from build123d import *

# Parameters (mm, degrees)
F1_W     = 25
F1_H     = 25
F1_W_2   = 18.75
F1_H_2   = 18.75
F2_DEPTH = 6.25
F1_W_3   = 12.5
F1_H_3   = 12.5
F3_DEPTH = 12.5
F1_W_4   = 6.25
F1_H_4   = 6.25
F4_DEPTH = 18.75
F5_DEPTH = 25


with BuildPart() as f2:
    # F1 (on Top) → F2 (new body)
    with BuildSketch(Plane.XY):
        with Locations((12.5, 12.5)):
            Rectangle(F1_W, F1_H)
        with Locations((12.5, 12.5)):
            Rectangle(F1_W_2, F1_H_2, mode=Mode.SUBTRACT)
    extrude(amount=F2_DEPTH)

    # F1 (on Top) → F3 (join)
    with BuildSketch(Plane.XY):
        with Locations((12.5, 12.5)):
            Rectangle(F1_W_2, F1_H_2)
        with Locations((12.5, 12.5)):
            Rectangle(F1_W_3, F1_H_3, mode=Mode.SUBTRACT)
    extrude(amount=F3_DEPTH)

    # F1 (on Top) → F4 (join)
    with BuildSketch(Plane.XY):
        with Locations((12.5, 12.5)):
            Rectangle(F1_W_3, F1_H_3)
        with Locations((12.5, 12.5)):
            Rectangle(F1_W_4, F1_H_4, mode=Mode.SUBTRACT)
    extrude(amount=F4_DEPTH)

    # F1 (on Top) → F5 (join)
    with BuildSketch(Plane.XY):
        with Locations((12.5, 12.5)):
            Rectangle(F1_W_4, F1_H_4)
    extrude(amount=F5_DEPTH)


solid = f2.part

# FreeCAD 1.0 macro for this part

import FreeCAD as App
import Part
import Sketcher
from FreeCAD import Vector
Q = App.Units.Quantity

doc = App.newDocument("Part")
params = doc.addObject("Spreadsheet::Sheet", "Params")
for row, (alias, value) in enumerate([
    ("sketch1_width", "25 mm"),
    ("sketch1_width2", "18.75 mm"),
    ("pad1_length", "6.25 mm"),
    ("sketch2_width", "12.5 mm"),
    ("sketch2_width2", "18.75 mm"),
    ("pad2_length", "12.5 mm"),
    ("sketch3_width", "12.5 mm"),
    ("sketch3_width2", "6.25 mm"),
    ("pad3_length", "18.75 mm"),
    ("sketch4_width", "6.25 mm"),
    ("pad4_length", "25 mm"),
], start=1):
    params.set(f"A{row}", alias)
    params.set(f"B{row}", "=" + value)
    params.setAlias(f"B{row}", alias)

body = doc.addObject("PartDesign::Body", "Body")

sketch1 = body.newObject("Sketcher::SketchObject", "Sketch")
sketch1.AttachmentSupport = (doc.getObject("XY_Plane"), [""])
sketch1.MapMode = "FlatFace"
sketch1.addGeometry([
    Part.LineSegment(Vector(0, 25, 0), Vector(0, 0, 0)),
    Part.LineSegment(Vector(0, 0, 0), Vector(25, 0, 0)),
    Part.LineSegment(Vector(25, 0, 0), Vector(25, 25, 0)),
    Part.LineSegment(Vector(25, 25, 0), Vector(0, 25, 0)),
    Part.LineSegment(Vector(22, 3, 0), Vector(3, 3, 0)),
    Part.LineSegment(Vector(3, 3, 0), Vector(3, 22, 0)),
    Part.LineSegment(Vector(3, 22, 0), Vector(22, 22, 0)),
    Part.LineSegment(Vector(22, 22, 0), Vector(22, 3, 0)),
], False)
sketch1.addConstraint([
    Sketcher.Constraint("Coincident", 0, 2, 1, 1),
    Sketcher.Constraint("Coincident", 1, 2, 2, 1),
    Sketcher.Constraint("Coincident", 2, 2, 3, 1),
    Sketcher.Constraint("Coincident", 3, 2, 0, 1),
    Sketcher.Constraint("Coincident", 4, 2, 5, 1),
    Sketcher.Constraint("Coincident", 5, 2, 6, 1),
    Sketcher.Constraint("Coincident", 6, 2, 7, 1),
    Sketcher.Constraint("Coincident", 7, 2, 4, 1),
    Sketcher.Constraint("Vertical", 0),
    Sketcher.Constraint("Horizontal", 1),
    Sketcher.Constraint("Vertical", 2),
    Sketcher.Constraint("Horizontal", 3),
    Sketcher.Constraint("Horizontal", 4),
    Sketcher.Constraint("Vertical", 5),
    Sketcher.Constraint("Horizontal", 6),
    Sketcher.Constraint("Vertical", 7),
    Sketcher.Constraint("Coincident", 0, 2, -1, 1),
    Sketcher.Constraint("Equal", 3, 0),
    Sketcher.Constraint("Equal", 6, 5),
    Sketcher.Constraint("DistanceX", 1, 1, 1, 2, Q("25 mm")),
    Sketcher.Constraint("DistanceX", 4, 2, 4, 1, Q("18.75 mm")),
    Sketcher.Constraint("DistanceX", -1, 1, 4, 2, Q("3.125 mm")),
    Sketcher.Constraint("DistanceY", -1, 1, 4, 2, Q("3.125 mm")),
])
sketch1.setExpression("Constraints[19]", "Params.sketch1_width")
sketch1.setExpression("Constraints[20]", "Params.sketch1_width2")
pad1 = body.newObject("PartDesign::Pad", "Pad")
pad1.Profile = sketch1
pad1.setExpression("Length", "Params.pad1_length")

sketch2 = body.newObject("Sketcher::SketchObject", "Sketch001")
sketch2.AttachmentSupport = (doc.getObject("XY_Plane"), [""])
sketch2.MapMode = "FlatFace"
sketch2.addGeometry([
    Part.LineSegment(Vector(3, 22, 0), Vector(3, 3, 0)),
    Part.LineSegment(Vector(3, 3, 0), Vector(22, 3, 0)),
    Part.LineSegment(Vector(22, 3, 0), Vector(22, 22, 0)),
    Part.LineSegment(Vector(22, 22, 0), Vector(3, 22, 0)),
    Part.LineSegment(Vector(19, 6, 0), Vector(6, 6, 0)),
    Part.LineSegment(Vector(6, 6, 0), Vector(6, 19, 0)),
    Part.LineSegment(Vector(6, 19, 0), Vector(19, 19, 0)),
    Part.LineSegment(Vector(19, 19, 0), Vector(19, 6, 0)),
], False)
sketch2.addConstraint([
    Sketcher.Constraint("Coincident", 0, 2, 1, 1),
    Sketcher.Constraint("Coincident", 1, 2, 2, 1),
    Sketcher.Constraint("Coincident", 2, 2, 3, 1),
    Sketcher.Constraint("Coincident", 3, 2, 0, 1),
    Sketcher.Constraint("Coincident", 4, 2, 5, 1),
    Sketcher.Constraint("Coincident", 5, 2, 6, 1),
    Sketcher.Constraint("Coincident", 6, 2, 7, 1),
    Sketcher.Constraint("Coincident", 7, 2, 4, 1),
    Sketcher.Constraint("Vertical", 0),
    Sketcher.Constraint("Horizontal", 1),
    Sketcher.Constraint("Vertical", 2),
    Sketcher.Constraint("Horizontal", 3),
    Sketcher.Constraint("Horizontal", 4),
    Sketcher.Constraint("Vertical", 5),
    Sketcher.Constraint("Horizontal", 6),
    Sketcher.Constraint("Vertical", 7),
    Sketcher.Constraint("Equal", 3, 0),
    Sketcher.Constraint("Equal", 6, 5),
    Sketcher.Constraint("DistanceX", 4, 2, 4, 1, Q("12.5 mm")),
    Sketcher.Constraint("DistanceX", 1, 1, 1, 2, Q("18.75 mm")),
    Sketcher.Constraint("DistanceX", -1, 1, 4, 2, Q("6.25 mm")),
    Sketcher.Constraint("DistanceY", -1, 1, 4, 2, Q("6.25 mm")),
    Sketcher.Constraint("DistanceX", -1, 1, 0, 2, Q("3.125 mm")),
    Sketcher.Constraint("DistanceY", -1, 1, 0, 2, Q("3.125 mm")),
])
sketch2.setExpression("Constraints[18]", "Params.sketch2_width")
sketch2.setExpression("Constraints[19]", "Params.sketch2_width2")
pad2 = body.newObject("PartDesign::Pad", "Pad001")
pad2.Profile = sketch2
pad2.setExpression("Length", "Params.pad2_length")

sketch3 = body.newObject("Sketcher::SketchObject", "Sketch002")
sketch3.AttachmentSupport = (doc.getObject("XY_Plane"), [""])
sketch3.MapMode = "FlatFace"
sketch3.addGeometry([
    Part.LineSegment(Vector(6, 19, 0), Vector(6, 6, 0)),
    Part.LineSegment(Vector(6, 6, 0), Vector(19, 6, 0)),
    Part.LineSegment(Vector(19, 6, 0), Vector(19, 19, 0)),
    Part.LineSegment(Vector(19, 19, 0), Vector(6, 19, 0)),
    Part.LineSegment(Vector(16, 9, 0), Vector(9, 9, 0)),
    Part.LineSegment(Vector(9, 9, 0), Vector(9, 16, 0)),
    Part.LineSegment(Vector(9, 16, 0), Vector(16, 16, 0)),
    Part.LineSegment(Vector(16, 16, 0), Vector(16, 9, 0)),
], False)
sketch3.addConstraint([
    Sketcher.Constraint("Coincident", 0, 2, 1, 1),
    Sketcher.Constraint("Coincident", 1, 2, 2, 1),
    Sketcher.Constraint("Coincident", 2, 2, 3, 1),
    Sketcher.Constraint("Coincident", 3, 2, 0, 1),
    Sketcher.Constraint("Coincident", 4, 2, 5, 1),
    Sketcher.Constraint("Coincident", 5, 2, 6, 1),
    Sketcher.Constraint("Coincident", 6, 2, 7, 1),
    Sketcher.Constraint("Coincident", 7, 2, 4, 1),
    Sketcher.Constraint("Vertical", 0),
    Sketcher.Constraint("Horizontal", 1),
    Sketcher.Constraint("Vertical", 2),
    Sketcher.Constraint("Horizontal", 3),
    Sketcher.Constraint("Horizontal", 4),
    Sketcher.Constraint("Vertical", 5),
    Sketcher.Constraint("Horizontal", 6),
    Sketcher.Constraint("Vertical", 7),
    Sketcher.Constraint("Equal", 3, 0),
    Sketcher.Constraint("Equal", 6, 5),
    Sketcher.Constraint("DistanceX", 1, 1, 1, 2, Q("12.5 mm")),
    Sketcher.Constraint("DistanceX", 4, 2, 4, 1, Q("6.25 mm")),
    Sketcher.Constraint("DistanceX", -1, 1, 0, 2, Q("6.25 mm")),
    Sketcher.Constraint("DistanceY", -1, 1, 0, 2, Q("6.25 mm")),
    Sketcher.Constraint("DistanceX", -1, 1, 4, 2, Q("9.375 mm")),
    Sketcher.Constraint("DistanceY", -1, 1, 4, 2, Q("9.375 mm")),
])
sketch3.setExpression("Constraints[18]", "Params.sketch3_width")
sketch3.setExpression("Constraints[19]", "Params.sketch3_width2")
pad3 = body.newObject("PartDesign::Pad", "Pad002")
pad3.Profile = sketch3
pad3.setExpression("Length", "Params.pad3_length")

sketch4 = body.newObject("Sketcher::SketchObject", "Sketch003")
sketch4.AttachmentSupport = (doc.getObject("XY_Plane"), [""])
sketch4.MapMode = "FlatFace"
sketch4.addGeometry([
    Part.LineSegment(Vector(9, 16, 0), Vector(9, 9, 0)),
    Part.LineSegment(Vector(9, 9, 0), Vector(16, 9, 0)),
    Part.LineSegment(Vector(16, 9, 0), Vector(16, 16, 0)),
    Part.LineSegment(Vector(16, 16, 0), Vector(9, 16, 0)),
], False)
sketch4.addConstraint([
    Sketcher.Constraint("Coincident", 0, 2, 1, 1),
    Sketcher.Constraint("Coincident", 1, 2, 2, 1),
    Sketcher.Constraint("Coincident", 2, 2, 3, 1),
    Sketcher.Constraint("Coincident", 3, 2, 0, 1),
    Sketcher.Constraint("Vertical", 0),
    Sketcher.Constraint("Horizontal", 1),
    Sketcher.Constraint("Vertical", 2),
    Sketcher.Constraint("Horizontal", 3),
    Sketcher.Constraint("Equal", 3, 0),
    Sketcher.Constraint("DistanceX", 1, 1, 1, 2, Q("6.25 mm")),
    Sketcher.Constraint("DistanceX", -1, 1, 0, 2, Q("9.375 mm")),
    Sketcher.Constraint("DistanceY", -1, 1, 0, 2, Q("9.375 mm")),
])
sketch4.setExpression("Constraints[9]", "Params.sketch4_width")
pad4 = body.newObject("PartDesign::Pad", "Pad003")
pad4.Profile = sketch4
pad4.setExpression("Length", "Params.pad4_length")

doc.recompute()
